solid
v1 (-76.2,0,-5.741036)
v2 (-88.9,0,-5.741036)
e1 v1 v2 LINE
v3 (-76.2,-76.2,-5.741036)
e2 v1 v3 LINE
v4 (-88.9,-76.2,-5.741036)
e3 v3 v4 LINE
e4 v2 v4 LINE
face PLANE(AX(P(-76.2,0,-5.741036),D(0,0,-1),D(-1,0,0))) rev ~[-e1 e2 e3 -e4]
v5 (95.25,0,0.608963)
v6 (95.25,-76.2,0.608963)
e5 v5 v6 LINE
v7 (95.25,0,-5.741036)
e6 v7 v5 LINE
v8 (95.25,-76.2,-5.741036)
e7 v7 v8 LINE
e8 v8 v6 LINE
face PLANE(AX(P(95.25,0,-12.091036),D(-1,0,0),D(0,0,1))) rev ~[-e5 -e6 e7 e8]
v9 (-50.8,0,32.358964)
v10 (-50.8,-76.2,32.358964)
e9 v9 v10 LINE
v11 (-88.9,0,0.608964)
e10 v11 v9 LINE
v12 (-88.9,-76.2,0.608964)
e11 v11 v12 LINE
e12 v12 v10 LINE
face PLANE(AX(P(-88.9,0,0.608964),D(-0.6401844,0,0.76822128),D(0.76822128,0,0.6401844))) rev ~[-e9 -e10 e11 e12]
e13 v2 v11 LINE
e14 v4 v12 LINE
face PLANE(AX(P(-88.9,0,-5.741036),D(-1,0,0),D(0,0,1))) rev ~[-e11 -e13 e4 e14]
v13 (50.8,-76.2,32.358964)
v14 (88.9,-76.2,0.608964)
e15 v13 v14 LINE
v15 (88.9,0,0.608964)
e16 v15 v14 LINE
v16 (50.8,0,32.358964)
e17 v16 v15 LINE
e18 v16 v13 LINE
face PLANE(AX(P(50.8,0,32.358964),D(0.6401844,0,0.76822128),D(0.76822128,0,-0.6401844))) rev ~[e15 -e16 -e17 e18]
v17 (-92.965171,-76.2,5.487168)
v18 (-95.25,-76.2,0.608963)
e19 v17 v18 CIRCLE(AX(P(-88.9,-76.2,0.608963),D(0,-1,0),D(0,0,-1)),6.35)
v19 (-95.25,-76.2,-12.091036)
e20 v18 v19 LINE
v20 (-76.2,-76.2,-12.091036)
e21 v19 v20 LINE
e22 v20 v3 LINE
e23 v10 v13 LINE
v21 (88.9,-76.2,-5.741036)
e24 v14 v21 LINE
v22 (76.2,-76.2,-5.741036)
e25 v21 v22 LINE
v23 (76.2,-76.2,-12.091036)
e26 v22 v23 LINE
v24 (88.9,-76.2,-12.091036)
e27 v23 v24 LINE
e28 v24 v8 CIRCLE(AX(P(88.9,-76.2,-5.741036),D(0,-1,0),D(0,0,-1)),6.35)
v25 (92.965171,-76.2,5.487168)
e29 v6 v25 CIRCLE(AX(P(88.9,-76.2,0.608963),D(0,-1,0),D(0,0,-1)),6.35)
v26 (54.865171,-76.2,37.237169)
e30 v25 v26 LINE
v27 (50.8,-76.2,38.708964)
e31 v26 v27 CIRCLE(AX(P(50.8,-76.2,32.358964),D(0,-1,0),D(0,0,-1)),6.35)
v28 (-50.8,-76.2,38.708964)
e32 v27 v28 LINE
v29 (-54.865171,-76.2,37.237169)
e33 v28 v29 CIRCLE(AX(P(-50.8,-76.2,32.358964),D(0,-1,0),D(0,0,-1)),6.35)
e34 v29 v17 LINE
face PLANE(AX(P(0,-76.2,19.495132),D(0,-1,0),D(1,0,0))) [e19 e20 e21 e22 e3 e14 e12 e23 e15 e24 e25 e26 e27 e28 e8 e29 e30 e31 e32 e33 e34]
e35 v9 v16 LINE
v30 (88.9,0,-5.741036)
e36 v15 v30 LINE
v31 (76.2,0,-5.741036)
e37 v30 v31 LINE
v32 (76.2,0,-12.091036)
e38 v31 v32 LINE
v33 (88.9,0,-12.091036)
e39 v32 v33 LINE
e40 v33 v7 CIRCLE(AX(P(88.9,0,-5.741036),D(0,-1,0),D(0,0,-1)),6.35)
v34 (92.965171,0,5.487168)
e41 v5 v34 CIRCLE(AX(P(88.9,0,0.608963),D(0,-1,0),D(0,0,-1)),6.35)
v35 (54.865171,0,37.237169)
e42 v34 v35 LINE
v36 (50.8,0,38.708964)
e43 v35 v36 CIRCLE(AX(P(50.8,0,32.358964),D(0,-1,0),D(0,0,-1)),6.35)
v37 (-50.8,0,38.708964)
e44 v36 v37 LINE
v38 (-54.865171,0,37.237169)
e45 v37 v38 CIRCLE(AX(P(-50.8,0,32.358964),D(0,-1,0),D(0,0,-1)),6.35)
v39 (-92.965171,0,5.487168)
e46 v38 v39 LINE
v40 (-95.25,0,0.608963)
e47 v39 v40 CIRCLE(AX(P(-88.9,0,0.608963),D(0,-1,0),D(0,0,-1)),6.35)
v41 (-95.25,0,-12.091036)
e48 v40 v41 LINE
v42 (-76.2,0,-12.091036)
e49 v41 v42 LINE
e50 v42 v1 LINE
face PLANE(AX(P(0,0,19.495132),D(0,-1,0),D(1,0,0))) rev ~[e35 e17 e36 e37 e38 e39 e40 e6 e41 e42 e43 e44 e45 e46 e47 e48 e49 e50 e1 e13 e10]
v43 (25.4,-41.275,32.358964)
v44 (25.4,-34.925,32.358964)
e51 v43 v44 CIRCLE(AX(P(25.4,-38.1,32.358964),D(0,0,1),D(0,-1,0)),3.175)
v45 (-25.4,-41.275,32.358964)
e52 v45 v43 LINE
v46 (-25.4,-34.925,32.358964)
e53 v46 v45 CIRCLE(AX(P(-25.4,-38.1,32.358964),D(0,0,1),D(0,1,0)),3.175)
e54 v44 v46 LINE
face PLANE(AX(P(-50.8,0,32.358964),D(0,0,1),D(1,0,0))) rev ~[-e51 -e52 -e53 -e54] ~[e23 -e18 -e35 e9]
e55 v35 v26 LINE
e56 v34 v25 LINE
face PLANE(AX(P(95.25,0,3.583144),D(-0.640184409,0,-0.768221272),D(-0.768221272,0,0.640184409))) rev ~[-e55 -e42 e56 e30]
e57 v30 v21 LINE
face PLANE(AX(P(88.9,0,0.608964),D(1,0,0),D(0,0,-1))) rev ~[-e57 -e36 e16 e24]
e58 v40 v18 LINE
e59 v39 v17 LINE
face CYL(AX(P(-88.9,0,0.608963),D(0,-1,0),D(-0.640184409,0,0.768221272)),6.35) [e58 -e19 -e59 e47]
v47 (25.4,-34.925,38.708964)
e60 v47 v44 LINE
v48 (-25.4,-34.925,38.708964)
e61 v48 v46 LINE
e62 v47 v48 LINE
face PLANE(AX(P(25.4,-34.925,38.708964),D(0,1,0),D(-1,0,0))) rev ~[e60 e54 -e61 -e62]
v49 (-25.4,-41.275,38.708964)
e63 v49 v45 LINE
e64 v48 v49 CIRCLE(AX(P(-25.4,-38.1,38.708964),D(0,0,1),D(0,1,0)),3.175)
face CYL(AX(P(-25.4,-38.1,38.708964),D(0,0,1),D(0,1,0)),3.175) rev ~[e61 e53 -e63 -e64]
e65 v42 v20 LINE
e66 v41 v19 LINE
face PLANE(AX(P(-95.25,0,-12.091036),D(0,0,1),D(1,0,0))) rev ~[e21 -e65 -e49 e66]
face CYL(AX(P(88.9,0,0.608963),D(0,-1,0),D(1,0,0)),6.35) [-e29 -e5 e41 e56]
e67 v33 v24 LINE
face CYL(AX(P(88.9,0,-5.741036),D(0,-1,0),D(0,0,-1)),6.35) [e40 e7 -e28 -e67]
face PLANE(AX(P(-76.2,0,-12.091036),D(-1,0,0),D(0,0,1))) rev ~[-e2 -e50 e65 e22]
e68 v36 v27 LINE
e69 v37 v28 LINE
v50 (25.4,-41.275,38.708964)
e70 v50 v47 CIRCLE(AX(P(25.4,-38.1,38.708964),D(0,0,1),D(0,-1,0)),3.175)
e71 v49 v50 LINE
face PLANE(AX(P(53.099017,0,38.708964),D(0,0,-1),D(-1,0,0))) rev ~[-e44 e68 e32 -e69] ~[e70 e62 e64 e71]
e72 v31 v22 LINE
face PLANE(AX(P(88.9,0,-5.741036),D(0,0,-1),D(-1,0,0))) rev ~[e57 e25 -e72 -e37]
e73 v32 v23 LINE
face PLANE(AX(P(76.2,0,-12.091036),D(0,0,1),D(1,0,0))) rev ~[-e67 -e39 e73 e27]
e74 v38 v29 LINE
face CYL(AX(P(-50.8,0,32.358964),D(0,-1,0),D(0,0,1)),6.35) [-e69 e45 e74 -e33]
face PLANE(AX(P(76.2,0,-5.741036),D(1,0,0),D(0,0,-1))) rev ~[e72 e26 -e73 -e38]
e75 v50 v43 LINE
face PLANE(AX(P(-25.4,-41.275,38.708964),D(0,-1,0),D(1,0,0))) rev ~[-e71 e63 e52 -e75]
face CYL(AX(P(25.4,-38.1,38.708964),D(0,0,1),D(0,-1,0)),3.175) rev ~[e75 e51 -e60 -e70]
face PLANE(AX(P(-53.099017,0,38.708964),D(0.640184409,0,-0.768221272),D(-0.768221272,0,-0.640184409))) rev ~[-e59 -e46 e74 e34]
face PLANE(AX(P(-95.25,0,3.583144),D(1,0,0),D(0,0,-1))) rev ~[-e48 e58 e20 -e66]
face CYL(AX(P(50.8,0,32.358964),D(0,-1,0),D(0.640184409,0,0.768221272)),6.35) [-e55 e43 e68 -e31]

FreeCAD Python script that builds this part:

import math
import FreeCAD as App
import Part
import Sketcher
from FreeCAD import Vector
Q = App.Units.Quantity


def edges_at(feature, points):
    """Names of the edges that pass closest to the given points."""
    edges = feature.Shape.Edges
    near = lambda p: min(range(len(edges)), key=lambda i: edges[i].distToShape(Part.Vertex(*p))[0])
    return sorted({f"Edge{near(p) + 1}" for p in points})

doc = App.newDocument("Part")
body = doc.addObject("PartDesign::Body", "Body")

sketch1 = body.newObject("Sketcher::SketchObject", "Sketch")
sketch1.AttachmentSupport = (doc.getObject("XZ_Plane"), [""])
sketch1.MapMode = "FlatFace"
sketch1.addGeometry([
    Part.LineSegment(Vector(89, -6, 0), Vector(76, -6, 0)),
    Part.LineSegment(Vector(76, -6, 0), Vector(76, -12, 0)),
    Part.LineSegment(Vector(76, -12, 0), Vector(95, -12, 0)),
    Part.LineSegment(Vector(95, -12, 0), Vector(95, 4, 0)),
    Part.LineSegment(Vector(95, 4, 0), Vector(53, 39, 0)),
    Part.LineSegment(Vector(53, 39, 0), Vector(-53, 39, 0)),
    Part.LineSegment(Vector(-53, 39, 0), Vector(-95, 4, 0)),
    Part.LineSegment(Vector(-95, 4, 0), Vector(-95, -12, 0)),
    Part.LineSegment(Vector(-95, -12, 0), Vector(-76, -12, 0)),
    Part.LineSegment(Vector(-76, -12, 0), Vector(-76, -6, 0)),
    Part.LineSegment(Vector(-76, -6, 0), Vector(-89, -6, 0)),
    Part.LineSegment(Vector(-89, -6, 0), Vector(-89, 1, 0)),
    Part.LineSegment(Vector(-89, 1, 0), Vector(-51, 32, 0)),
    Part.LineSegment(Vector(-51, 32, 0), Vector(51, 32, 0)),
    Part.LineSegment(Vector(51, 32, 0), Vector(89, 1, 0)),
    Part.LineSegment(Vector(89, 1, 0), Vector(89, -6, 0)),
], False)
sketch1.addConstraint([
    Sketcher.Constraint("Coincident", 0, 2, 1, 1),
    Sketcher.Constraint("Coincident", 1, 2, 2, 1),
    Sketcher.Constraint("Coincident", 2, 2, 3, 1),
    Sketcher.Constraint("Coincident", 3, 2, 4, 1),
    Sketcher.Constraint("Coincident", 4, 2, 5, 1),
    Sketcher.Constraint("Coincident", 5, 2, 6, 1),
    Sketcher.Constraint("Coincident", 6, 2, 7, 1),
    Sketcher.Constraint("Coincident", 7, 2, 8, 1),
    Sketcher.Constraint("Coincident", 8, 2, 9, 1),
    Sketcher.Constraint("Coincident", 9, 2, 10, 1),
    Sketcher.Constraint("Coincident", 10, 2, 11, 1),
    Sketcher.Constraint("Coincident", 11, 2, 12, 1),
    Sketcher.Constraint("Coincident", 12, 2, 13, 1),
    Sketcher.Constraint("Coincident", 13, 2, 14, 1),
    Sketcher.Constraint("Coincident", 14, 2, 15, 1),
    Sketcher.Constraint("Coincident", 15, 2, 0, 1),
    Sketcher.Constraint("Horizontal", 0),
    Sketcher.Constraint("Vertical", 1),
    Sketcher.Constraint("Horizontal", 2),
    Sketcher.Constraint("Vertical", 3),
    Sketcher.Constraint("Horizontal", 5),
    Sketcher.Constraint("Vertical", 7),
    Sketcher.Constraint("Horizontal", 8),
    Sketcher.Constraint("Vertical", 9),
    Sketcher.Constraint("Horizontal", 10),
    Sketcher.Constraint("Vertical", 11),
    Sketcher.Constraint("Horizontal", 13),
    Sketcher.Constraint("Vertical", 15),
    Sketcher.Constraint("Symmetric", 3, 2, 6, 2, -2),
    Sketcher.Constraint("Symmetric", 1, 2, 8, 2, -2),
    Sketcher.Constraint("Symmetric", 11, 2, 14, 2, -2),
    Sketcher.Constraint("Parallel", 6, 12),
    Sketcher.Constraint("Parallel", 4, 14),
    Sketcher.Constraint("Horizontal", 0, 2, 9, 2),
    Sketcher.Constraint("Equal", 9, 11),
    Sketcher.Constraint("Equal", 4, 6),
    Sketcher.Constraint("DistanceX", 13, 1, 13, 2, Q("4 in")),
    Sketcher.Constraint("DistanceX", 0, 2, 0, 1, Q("0.5 in")),
    Sketcher.Constraint("DistanceX", -1, 1, 0, 2, Q("3 in")),
    Sketcher.Constraint("DistanceY", 1, 2, 4, 2, Q("2 in")),
    Sketcher.Constraint("DistanceX", 2, 1, 2, 2, Q("0.75 in")),
    Sketcher.Constraint("DistanceY", 1, 2, 1, 1, Q("0.25 in")),
    Sketcher.Constraint("DistanceY", 9, 2, 12, 2, Q("1.5 in")),
    Sketcher.Constraint("DistanceY", 3, 1, 3, 2, Q("15.67418 mm")),
    Sketcher.Constraint("DistanceY", 0, 2, -1, 1, Q("5.741036 mm")),
])
pad1 = body.newObject("PartDesign::Pad", "Pad")
pad1.Profile = sketch1
pad1.Length = Q("3 in")
doc.recompute()

fillet = body.newObject("PartDesign::Fillet", "Fillet")
fillet.Base = (pad1, edges_at(pad1, [
    (-53.099, -38.1, 38.709),
    (53.099, -38.1, 38.709),
    (95.25, -38.1, 3.583),
    (95.25, -38.1, -12.091),
    (-95.25, -38.1, 3.583),
]))
fillet.Radius = Q("0.25 in")

sketch2 = body.newObject("Sketcher::SketchObject", "Sketch001")
sketch2.AttachmentSupport = (doc.getObject("XY_Plane"), [""])
sketch2.MapMode = "FlatFace"
sketch2.AttachmentOffset = App.Placement(Vector(0, 0, 38.708964), App.Rotation())
sketch2.addGeometry([
    Part.LineSegment(Vector(25.4, -34.9, 0), Vector(-25.4, -34.9, 0)),
    Part.ArcOfCircle(Part.Circle(Vector(-25.4, -38.1, 0), Vector(0, 0, 1), 3.2), math.radians(90), math.radians(270)),
    Part.LineSegment(Vector(-25.4, -41.3, 0), Vector(25.4, -41.3, 0)),
    Part.ArcOfCircle(Part.Circle(Vector(25.4, -38.1, 0), Vector(0, 0, 1), 3.2), math.radians(-90), math.radians(90)),
], False)
sketch2.addConstraint([
    Sketcher.Constraint("Tangent", 0, 2, 1, 1),
    Sketcher.Constraint("Tangent", 1, 2, 2, 1),
    Sketcher.Constraint("Tangent", 2, 2, 3, 1),
    Sketcher.Constraint("Tangent", 3, 2, 0, 1),
    Sketcher.Constraint("Horizontal", 0),
    Sketcher.Constraint("Horizontal", 2),
    Sketcher.Constraint("DistanceX", 0, 2, 0, 1, Q("2 in")),
    Sketcher.Constraint("DistanceX", 1, 3, -1, 1, Q("1 in")),
    Sketcher.Constraint("Radius", 1, Q("0.125 in")),
    Sketcher.Constraint("DistanceY", 1, 3, -1, 1, Q("1.5 in")),
])
pocket1 = body.newObject("PartDesign::Pocket", "Pocket")
pocket1.Profile = sketch2
pocket1.Type = "ThroughAll"

doc.recompute()
